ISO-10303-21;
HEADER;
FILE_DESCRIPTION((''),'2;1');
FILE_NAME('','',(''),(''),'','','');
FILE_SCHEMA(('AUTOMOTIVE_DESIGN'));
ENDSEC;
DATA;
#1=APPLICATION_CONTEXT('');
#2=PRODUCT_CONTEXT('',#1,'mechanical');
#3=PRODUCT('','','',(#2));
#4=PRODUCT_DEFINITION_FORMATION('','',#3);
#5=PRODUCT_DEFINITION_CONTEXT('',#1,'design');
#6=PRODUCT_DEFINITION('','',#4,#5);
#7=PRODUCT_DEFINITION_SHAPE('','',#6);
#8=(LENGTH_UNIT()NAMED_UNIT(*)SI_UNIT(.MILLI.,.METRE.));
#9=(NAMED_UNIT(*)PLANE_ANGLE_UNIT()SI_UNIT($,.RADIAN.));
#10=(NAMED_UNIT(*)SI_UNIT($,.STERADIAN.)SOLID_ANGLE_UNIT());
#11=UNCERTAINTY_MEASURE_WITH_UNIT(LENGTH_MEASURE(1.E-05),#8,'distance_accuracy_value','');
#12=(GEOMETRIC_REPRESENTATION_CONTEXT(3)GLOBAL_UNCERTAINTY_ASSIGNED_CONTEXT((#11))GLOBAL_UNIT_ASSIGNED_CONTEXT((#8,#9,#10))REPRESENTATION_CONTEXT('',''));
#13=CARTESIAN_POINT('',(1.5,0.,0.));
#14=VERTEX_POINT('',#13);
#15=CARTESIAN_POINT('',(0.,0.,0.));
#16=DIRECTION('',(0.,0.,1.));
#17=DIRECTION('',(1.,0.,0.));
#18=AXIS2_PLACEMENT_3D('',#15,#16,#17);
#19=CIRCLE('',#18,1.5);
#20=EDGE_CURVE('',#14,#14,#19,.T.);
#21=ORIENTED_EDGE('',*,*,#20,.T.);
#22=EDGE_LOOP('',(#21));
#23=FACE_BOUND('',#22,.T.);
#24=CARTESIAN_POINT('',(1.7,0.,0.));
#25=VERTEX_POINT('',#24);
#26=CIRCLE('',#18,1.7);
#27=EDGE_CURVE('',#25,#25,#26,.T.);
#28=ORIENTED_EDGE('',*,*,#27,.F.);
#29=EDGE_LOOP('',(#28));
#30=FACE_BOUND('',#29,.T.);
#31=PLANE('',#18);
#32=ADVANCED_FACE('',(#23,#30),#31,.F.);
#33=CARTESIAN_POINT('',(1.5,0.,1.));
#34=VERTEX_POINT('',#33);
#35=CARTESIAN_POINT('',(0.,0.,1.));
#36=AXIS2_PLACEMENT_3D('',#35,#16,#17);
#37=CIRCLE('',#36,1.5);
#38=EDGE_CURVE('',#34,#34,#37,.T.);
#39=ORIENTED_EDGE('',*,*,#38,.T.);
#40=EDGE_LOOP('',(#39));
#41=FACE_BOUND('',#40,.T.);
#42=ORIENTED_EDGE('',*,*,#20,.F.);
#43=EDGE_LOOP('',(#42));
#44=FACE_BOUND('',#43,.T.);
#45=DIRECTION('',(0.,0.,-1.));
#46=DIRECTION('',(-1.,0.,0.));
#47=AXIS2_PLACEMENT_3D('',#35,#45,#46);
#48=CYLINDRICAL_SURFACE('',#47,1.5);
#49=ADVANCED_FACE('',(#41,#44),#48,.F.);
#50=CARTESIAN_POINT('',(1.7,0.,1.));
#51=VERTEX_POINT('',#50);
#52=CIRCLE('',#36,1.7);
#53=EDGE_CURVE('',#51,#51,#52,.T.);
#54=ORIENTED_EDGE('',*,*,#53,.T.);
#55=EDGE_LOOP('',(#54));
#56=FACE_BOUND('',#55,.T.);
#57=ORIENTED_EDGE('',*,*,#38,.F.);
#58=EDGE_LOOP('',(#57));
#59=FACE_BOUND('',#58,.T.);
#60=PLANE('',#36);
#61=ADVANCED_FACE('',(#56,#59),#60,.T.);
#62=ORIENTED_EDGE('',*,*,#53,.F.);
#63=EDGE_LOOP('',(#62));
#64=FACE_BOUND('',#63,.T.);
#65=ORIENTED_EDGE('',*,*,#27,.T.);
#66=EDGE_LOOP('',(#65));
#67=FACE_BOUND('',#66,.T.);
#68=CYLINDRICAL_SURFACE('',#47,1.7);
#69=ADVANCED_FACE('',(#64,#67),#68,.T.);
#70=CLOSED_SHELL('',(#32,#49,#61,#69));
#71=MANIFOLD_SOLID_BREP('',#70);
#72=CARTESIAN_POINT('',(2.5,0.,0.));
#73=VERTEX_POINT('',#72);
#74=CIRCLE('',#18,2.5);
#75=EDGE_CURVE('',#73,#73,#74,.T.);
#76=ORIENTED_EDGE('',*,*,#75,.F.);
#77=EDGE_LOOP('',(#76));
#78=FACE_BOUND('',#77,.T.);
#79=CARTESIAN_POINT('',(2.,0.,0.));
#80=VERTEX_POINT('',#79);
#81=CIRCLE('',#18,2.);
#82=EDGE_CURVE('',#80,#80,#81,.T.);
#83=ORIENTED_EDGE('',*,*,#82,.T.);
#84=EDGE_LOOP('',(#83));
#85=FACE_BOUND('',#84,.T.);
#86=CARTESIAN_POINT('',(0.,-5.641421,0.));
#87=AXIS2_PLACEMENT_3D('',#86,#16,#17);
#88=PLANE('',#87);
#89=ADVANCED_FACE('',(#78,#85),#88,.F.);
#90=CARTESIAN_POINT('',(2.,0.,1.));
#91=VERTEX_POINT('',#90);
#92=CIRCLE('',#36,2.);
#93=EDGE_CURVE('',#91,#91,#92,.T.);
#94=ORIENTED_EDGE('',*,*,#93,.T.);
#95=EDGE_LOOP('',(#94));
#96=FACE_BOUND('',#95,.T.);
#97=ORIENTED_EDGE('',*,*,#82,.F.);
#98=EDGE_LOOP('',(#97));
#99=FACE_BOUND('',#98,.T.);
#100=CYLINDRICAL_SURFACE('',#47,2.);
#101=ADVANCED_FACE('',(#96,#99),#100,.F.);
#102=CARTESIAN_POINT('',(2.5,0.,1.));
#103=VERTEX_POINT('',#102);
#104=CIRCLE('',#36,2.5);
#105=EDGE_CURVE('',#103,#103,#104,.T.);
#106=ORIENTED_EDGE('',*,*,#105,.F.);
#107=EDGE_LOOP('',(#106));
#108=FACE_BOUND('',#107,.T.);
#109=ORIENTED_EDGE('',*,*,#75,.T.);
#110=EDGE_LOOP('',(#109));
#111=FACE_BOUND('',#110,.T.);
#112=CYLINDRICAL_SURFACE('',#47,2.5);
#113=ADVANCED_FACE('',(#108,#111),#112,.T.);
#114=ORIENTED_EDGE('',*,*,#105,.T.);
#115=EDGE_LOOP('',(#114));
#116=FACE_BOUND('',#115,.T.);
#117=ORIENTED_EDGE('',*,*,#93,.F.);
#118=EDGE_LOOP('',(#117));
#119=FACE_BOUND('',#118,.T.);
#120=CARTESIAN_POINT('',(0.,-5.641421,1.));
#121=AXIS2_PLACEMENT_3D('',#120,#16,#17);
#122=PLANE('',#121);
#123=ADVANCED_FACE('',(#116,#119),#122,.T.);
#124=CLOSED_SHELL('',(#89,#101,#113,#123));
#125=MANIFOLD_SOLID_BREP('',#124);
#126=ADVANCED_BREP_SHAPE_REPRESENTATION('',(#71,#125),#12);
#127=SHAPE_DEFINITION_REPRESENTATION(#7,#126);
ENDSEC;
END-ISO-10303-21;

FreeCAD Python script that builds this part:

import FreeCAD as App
import Part
import Sketcher

V = App.Vector

doc = App.newDocument("Part")
body = doc.addObject("PartDesign::Body", "Body")

# Sketch on XY plane
sketch1 = doc.addObject("Sketcher::SketchObject", "Sketch")
body.addObject(sketch1)
sketch1.AttachmentSupport = (doc.XY_Plane, [""])
sketch1.MapMode = "FlatFace"
sketch1.addGeometry([
    Part.Circle(V(0, 0, 0), V(0, 0, 1), 2.5),
    Part.Circle(V(0, 0, 0), V(0, 0, 1), 2),
], False)
sketch1.addConstraint([
    Sketcher.Constraint("Coincident", 0, 3, -1, 1),
    Sketcher.Constraint("Coincident", 1, 3, -1, 1),
    Sketcher.Constraint("Diameter", 0, 5.0),
    Sketcher.Constraint("Diameter", 1, 4.0),
])
pad1 = doc.addObject("PartDesign::Pad", "Pad")
body.addObject(pad1)
pad1.Profile = sketch1
pad1.Length = 1
body2 = doc.addObject("PartDesign::Body", "Body001")

# Sketch on XY plane
sketch2 = doc.addObject("Sketcher::SketchObject", "Sketch001")
body2.addObject(sketch2)
sketch2.AttachmentSupport = (doc.getObject("XY_Plane001"), [""])
sketch2.MapMode = "FlatFace"
sketch2.addGeometry([
    Part.Circle(V(0, 0, 0), V(0, 0, 1), 1.7),
    Part.Circle(V(0, 0, 0), V(0, 0, 1), 1.5),
], False)
sketch2.addConstraint([
    Sketcher.Constraint("Coincident", 0, 3, -1, 1),
    Sketcher.Constraint("Coincident", 1, 3, -1, 1),
    Sketcher.Constraint("Diameter", 1, 3.0),
    Sketcher.Constraint("Diameter", 0, 3.4),
])
pad2 = doc.addObject("PartDesign::Pad", "Pad001")
body2.addObject(pad2)
pad2.Profile = sketch2
pad2.Length = 1

doc.recompute()
